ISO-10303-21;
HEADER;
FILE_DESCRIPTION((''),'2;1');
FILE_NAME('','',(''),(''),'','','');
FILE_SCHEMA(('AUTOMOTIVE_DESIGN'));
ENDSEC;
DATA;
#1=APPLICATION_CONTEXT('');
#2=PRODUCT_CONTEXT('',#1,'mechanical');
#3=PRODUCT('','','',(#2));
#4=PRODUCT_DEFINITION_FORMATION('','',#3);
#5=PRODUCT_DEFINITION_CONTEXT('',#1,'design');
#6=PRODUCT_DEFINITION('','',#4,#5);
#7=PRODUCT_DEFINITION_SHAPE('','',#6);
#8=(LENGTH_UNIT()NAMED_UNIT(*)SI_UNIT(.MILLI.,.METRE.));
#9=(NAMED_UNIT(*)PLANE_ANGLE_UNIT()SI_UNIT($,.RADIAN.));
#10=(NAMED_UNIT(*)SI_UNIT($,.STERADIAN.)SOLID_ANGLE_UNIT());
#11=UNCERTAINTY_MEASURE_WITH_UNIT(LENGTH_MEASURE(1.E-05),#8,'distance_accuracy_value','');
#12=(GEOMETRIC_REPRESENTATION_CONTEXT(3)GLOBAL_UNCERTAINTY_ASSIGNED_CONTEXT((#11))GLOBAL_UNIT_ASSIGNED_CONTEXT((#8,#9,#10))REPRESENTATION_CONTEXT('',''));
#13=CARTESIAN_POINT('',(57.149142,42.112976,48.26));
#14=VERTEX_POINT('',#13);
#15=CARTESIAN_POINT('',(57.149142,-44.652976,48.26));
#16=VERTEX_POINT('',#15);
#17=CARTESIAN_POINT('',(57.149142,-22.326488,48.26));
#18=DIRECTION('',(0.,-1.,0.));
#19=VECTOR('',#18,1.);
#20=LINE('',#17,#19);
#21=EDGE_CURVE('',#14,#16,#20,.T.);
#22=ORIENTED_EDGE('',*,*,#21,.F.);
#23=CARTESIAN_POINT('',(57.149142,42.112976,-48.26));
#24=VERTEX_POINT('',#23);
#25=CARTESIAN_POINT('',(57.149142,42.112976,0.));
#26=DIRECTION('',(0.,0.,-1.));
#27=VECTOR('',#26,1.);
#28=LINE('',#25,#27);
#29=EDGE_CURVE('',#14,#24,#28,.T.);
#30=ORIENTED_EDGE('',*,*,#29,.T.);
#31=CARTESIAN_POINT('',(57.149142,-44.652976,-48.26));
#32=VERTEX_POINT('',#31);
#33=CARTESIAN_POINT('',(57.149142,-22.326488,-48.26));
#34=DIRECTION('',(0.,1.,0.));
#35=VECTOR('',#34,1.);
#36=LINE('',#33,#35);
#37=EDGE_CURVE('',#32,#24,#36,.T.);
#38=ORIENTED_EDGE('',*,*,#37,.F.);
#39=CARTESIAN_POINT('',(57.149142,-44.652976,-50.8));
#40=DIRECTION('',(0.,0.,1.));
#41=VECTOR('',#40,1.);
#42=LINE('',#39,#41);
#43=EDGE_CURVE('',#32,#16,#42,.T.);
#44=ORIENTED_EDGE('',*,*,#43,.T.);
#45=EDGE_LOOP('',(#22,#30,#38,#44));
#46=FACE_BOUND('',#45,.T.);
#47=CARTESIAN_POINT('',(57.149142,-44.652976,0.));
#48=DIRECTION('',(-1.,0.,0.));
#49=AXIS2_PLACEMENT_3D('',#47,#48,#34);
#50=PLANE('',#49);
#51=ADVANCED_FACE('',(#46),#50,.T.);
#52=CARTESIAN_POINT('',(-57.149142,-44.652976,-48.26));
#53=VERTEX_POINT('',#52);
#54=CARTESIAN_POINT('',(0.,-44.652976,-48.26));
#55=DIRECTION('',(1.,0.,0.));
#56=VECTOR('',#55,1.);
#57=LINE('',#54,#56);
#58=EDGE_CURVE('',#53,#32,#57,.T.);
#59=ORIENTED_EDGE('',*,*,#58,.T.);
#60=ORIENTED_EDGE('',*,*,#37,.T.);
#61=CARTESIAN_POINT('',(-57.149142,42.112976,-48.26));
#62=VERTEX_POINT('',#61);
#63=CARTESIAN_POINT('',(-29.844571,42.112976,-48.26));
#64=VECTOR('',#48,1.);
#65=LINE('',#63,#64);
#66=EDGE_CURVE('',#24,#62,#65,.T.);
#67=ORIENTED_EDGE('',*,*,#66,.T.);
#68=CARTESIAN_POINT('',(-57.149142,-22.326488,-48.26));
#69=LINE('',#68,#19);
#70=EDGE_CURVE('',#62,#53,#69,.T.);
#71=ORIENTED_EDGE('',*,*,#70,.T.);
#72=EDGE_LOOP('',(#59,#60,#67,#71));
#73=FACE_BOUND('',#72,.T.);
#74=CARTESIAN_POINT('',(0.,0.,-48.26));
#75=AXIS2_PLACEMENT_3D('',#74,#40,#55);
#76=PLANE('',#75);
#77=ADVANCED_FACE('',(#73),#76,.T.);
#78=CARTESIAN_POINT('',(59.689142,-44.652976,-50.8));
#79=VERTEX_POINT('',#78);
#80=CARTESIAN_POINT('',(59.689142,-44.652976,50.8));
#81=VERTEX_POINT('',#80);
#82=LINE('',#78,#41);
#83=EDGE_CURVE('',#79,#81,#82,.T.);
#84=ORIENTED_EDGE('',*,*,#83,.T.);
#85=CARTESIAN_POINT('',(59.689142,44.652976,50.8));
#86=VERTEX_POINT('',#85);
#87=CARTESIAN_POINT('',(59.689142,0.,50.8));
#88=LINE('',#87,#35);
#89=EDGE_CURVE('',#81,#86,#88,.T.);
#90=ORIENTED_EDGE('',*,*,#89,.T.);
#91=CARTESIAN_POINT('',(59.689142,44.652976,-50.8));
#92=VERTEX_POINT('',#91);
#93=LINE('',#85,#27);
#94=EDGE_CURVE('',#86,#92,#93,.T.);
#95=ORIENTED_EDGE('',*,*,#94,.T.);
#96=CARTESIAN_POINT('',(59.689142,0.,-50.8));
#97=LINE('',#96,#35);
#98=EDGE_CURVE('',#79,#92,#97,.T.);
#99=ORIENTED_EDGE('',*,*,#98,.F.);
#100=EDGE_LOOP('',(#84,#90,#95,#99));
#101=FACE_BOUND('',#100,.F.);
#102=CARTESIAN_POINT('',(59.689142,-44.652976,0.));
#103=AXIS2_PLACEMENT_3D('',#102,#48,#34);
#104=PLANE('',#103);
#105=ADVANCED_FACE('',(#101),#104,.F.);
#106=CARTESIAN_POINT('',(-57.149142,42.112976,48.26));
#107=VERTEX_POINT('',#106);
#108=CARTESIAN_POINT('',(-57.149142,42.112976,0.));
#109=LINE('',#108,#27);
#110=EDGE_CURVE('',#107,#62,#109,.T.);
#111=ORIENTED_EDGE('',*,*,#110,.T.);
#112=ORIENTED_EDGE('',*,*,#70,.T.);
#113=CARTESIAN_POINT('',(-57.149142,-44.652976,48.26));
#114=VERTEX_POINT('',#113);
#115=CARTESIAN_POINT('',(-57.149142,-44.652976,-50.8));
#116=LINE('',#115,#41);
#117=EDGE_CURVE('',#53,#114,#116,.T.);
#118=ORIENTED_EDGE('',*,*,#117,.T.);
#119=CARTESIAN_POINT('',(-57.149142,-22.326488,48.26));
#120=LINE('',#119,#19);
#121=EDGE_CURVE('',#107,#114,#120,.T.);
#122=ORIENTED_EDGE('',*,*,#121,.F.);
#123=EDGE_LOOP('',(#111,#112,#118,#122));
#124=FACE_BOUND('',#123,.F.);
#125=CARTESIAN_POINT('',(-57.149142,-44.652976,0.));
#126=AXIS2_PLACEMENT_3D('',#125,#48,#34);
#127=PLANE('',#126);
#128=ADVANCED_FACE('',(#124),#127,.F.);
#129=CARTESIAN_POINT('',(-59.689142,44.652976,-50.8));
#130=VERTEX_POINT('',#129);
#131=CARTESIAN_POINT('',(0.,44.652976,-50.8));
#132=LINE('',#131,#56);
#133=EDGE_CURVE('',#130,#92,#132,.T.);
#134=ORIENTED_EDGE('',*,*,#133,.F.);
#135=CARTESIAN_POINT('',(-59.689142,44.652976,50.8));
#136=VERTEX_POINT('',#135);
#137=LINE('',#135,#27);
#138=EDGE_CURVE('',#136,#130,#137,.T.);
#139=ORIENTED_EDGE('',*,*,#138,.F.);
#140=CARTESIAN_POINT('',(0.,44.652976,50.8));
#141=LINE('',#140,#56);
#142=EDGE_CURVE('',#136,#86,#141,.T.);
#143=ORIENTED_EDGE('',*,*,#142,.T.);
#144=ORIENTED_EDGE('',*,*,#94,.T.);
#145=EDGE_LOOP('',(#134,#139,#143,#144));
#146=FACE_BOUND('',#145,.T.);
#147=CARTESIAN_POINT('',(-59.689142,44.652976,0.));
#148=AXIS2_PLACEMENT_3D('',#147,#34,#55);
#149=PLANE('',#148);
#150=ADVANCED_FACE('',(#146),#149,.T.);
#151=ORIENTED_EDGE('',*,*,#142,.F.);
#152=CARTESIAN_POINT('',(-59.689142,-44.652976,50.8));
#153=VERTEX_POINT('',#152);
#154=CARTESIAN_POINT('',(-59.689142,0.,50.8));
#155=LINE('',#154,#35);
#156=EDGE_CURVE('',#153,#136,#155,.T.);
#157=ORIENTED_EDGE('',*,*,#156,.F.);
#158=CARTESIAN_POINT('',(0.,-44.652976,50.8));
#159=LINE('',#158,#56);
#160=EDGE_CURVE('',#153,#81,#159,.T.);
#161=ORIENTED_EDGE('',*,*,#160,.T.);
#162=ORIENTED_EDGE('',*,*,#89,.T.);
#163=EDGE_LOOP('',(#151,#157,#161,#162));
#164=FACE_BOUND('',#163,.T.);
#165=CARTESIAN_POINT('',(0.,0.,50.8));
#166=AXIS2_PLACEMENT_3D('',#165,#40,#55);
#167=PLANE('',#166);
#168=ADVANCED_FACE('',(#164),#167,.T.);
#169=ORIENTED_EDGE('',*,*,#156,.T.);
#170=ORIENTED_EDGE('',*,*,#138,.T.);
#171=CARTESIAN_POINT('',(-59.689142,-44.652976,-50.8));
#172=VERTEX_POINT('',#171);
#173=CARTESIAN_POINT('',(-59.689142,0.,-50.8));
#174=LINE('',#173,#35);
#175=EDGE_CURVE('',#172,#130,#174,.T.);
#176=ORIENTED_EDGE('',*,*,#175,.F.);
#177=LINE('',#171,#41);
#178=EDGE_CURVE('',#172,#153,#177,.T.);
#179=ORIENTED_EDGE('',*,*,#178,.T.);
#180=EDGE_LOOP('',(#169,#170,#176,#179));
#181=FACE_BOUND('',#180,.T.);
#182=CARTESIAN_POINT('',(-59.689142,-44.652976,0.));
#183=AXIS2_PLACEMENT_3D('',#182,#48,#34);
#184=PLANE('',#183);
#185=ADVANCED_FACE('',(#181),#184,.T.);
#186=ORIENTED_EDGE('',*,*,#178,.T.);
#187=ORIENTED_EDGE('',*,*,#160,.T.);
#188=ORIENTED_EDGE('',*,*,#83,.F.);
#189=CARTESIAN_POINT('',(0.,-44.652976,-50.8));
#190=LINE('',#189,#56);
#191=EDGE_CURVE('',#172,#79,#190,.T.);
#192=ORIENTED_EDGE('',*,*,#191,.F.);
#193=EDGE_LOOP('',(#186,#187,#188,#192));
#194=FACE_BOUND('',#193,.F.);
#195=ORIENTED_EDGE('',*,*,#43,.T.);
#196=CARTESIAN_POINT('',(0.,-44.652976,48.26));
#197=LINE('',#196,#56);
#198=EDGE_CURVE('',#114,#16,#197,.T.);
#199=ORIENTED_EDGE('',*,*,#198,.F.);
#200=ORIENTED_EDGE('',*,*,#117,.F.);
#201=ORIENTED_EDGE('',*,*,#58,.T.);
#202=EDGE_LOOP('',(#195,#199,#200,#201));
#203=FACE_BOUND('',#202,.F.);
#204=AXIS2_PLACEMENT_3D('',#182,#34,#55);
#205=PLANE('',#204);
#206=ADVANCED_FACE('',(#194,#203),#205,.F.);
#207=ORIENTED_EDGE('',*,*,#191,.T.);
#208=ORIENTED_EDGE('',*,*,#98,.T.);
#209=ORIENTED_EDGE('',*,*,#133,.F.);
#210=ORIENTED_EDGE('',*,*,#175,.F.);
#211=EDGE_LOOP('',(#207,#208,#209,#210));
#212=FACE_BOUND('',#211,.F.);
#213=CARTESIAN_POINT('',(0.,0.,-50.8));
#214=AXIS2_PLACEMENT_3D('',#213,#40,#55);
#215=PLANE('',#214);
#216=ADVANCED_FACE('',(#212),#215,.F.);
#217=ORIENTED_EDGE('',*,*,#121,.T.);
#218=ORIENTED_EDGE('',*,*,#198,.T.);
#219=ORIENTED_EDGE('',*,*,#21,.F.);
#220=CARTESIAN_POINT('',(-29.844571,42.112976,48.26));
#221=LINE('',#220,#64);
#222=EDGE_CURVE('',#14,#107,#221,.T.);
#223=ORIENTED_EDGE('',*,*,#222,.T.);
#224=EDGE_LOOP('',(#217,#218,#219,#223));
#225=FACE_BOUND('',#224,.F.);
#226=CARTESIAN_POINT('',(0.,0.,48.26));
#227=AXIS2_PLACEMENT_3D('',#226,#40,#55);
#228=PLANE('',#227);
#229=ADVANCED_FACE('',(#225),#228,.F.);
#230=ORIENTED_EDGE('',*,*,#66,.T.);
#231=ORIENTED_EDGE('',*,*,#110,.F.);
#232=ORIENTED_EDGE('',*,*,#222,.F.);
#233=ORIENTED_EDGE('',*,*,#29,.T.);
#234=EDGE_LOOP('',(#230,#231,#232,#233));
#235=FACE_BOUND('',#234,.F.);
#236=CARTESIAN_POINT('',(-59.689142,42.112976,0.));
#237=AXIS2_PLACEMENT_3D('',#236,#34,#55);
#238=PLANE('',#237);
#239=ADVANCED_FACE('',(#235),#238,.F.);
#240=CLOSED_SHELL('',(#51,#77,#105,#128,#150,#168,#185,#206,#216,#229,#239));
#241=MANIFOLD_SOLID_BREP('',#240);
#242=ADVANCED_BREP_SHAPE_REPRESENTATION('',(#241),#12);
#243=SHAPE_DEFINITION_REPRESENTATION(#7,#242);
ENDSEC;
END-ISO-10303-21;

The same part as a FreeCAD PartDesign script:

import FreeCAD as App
import Part
import Sketcher
from FreeCAD import Vector
Q = App.Units.Quantity


def faces_at(feature, points):
    """Names of the faces that lie closest to the given points."""
    faces = feature.Shape.Faces
    near = lambda p: min(range(len(faces)), key=lambda i: faces[i].distToShape(Part.Vertex(*p))[0])
    return sorted({f"Face{near(p) + 1}" for p in points})

doc = App.newDocument("Part")
body = doc.addObject("PartDesign::Body", "Body")

sketch1 = doc.addObject("Sketcher::SketchObject", "Sketch")
body.addObject(sketch1)
sketch1.AttachmentSupport = (doc.XY_Plane, [""])
sketch1.MapMode = "FlatFace"
sketch1.addGeometry(Part.LineSegment(Vector(-60, 45, 0), Vector(-60, -45, 0)), False)
sketch1.addGeometry(Part.LineSegment(Vector(-60, -45, 0), Vector(60, -45, 0)), False)
sketch1.addGeometry(Part.LineSegment(Vector(60, -45, 0), Vector(60, 45, 0)), False)
sketch1.addGeometry(Part.LineSegment(Vector(60, 45, 0), Vector(-60, 45, 0)), False)
sketch1.addConstraint(Sketcher.Constraint("Coincident", 0, 2, 1, 1))
sketch1.addConstraint(Sketcher.Constraint("Coincident", 1, 2, 2, 1))
sketch1.addConstraint(Sketcher.Constraint("Coincident", 2, 2, 3, 1))
sketch1.addConstraint(Sketcher.Constraint("Coincident", 3, 2, 0, 1))
sketch1.addConstraint(Sketcher.Constraint("Vertical", 0))
sketch1.addConstraint(Sketcher.Constraint("Horizontal", 1))
sketch1.addConstraint(Sketcher.Constraint("Vertical", 2))
sketch1.addConstraint(Sketcher.Constraint("Horizontal", 3))
sketch1.addConstraint(Sketcher.Constraint("Symmetric", 0, 2, 2, 2, -1, 1))
sketch1.addConstraint(Sketcher.Constraint("DistanceX", 1, 1, 1, 2, 119.378284))
sketch1.addConstraint(Sketcher.Constraint("DistanceY", 0, 2, 0, 1, 89.305952))
pad1 = doc.addObject("PartDesign::Pad", "Pad")
body.addObject(pad1)
pad1.Profile = sketch1
pad1.Type = "TwoLengths"
pad1.Length = Q("2 in")
pad1.Length2 = Q("2 in")
pad1.Reversed = True
doc.recompute()

thickness = doc.addObject("PartDesign::Thickness", "Thickness")
body.addObject(thickness)
thickness.Base = (pad1, faces_at(pad1, [(0, -44.653, 0)]))
thickness.Value = Q("0.1 in")
thickness.Reversed = True
thickness.Join = "Arc"

doc.recompute()
